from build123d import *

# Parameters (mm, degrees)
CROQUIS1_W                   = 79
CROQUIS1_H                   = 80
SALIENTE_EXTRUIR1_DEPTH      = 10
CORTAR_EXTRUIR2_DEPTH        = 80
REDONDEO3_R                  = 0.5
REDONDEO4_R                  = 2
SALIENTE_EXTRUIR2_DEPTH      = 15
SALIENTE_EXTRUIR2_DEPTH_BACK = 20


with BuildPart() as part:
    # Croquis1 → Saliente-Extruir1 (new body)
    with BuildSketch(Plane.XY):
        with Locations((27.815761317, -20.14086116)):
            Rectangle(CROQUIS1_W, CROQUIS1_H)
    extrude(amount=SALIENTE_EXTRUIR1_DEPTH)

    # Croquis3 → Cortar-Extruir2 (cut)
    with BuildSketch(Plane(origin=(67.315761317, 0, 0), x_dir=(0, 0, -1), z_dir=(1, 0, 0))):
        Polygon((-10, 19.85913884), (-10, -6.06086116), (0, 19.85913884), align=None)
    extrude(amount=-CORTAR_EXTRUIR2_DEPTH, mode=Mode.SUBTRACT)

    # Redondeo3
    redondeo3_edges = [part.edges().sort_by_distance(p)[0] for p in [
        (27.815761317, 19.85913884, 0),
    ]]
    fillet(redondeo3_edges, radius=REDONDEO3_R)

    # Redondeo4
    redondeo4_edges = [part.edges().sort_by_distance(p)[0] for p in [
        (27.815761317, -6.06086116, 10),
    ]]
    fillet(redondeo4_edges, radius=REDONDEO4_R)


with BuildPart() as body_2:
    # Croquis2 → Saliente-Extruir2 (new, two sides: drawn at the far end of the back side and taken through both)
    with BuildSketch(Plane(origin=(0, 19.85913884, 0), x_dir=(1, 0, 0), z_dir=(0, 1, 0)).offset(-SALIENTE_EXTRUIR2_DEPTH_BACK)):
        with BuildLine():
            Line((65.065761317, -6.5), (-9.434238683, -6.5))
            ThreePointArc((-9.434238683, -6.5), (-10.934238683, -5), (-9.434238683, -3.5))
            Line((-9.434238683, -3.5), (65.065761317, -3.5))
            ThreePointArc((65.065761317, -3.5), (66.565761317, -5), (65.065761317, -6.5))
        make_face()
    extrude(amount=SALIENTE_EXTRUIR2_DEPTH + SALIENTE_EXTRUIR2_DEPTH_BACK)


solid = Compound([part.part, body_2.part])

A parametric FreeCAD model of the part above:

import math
import FreeCAD as App
import Part
import Sketcher
from FreeCAD import Vector


def edges_at(feature, points):
    """Names of the edges that pass closest to the given points."""
    edges = feature.Shape.Edges
    near = lambda p: min(range(len(edges)), key=lambda i: edges[i].distToShape(Part.Vertex(*p))[0])
    return sorted({f"Edge{near(p) + 1}" for p in points})

doc = App.newDocument("Part")
params = doc.addObject("Spreadsheet::Sheet", "Params")
for row, (alias, value) in enumerate([
    ("sketch1_width", "79 mm"),
    ("sketch1_height", "80 mm"),
    ("pad1_length", "10 mm"),
    ("sketch2_height", "10 mm"),
    ("sketch2_width", "25.92 mm"),
    ("pocket1_length", "80 mm"),
    ("fillet_radius", "0.5 mm"),
    ("fillet2_radius", "2 mm"),
    ("sketch3_radius", "1.5 mm"),
    ("sketch3_width", "74.5 mm"),
    ("pad2_length", "15 mm"),
    ("pad2_length2", "20 mm"),
], start=1):
    params.set(f"A{row}", alias)
    params.set(f"B{row}", "=" + value)
    params.setAlias(f"B{row}", alias)

body = doc.addObject("PartDesign::Body", "Body")

# Sketch on XY plane
sketch1 = body.newObject("Sketcher::SketchObject", "Sketch")
sketch1.AttachmentSupport = (doc.getObject("XY_Plane"), [""])
sketch1.MapMode = "FlatFace"
sketch1.addGeometry([
    Part.LineSegment(Vector(-12, 20, 0), Vector(-12, -60, 0)),
    Part.LineSegment(Vector(-12, -60, 0), Vector(67, -60, 0)),
    Part.LineSegment(Vector(67, -60, 0), Vector(67, 20, 0)),
    Part.LineSegment(Vector(67, 20, 0), Vector(-12, 20, 0)),
], False)
sketch1.addConstraint([
    Sketcher.Constraint("Coincident", 0, 2, 1, 1),
    Sketcher.Constraint("Coincident", 1, 2, 2, 1),
    Sketcher.Constraint("Coincident", 2, 2, 3, 1),
    Sketcher.Constraint("Coincident", 3, 2, 0, 1),
    Sketcher.Constraint("Vertical", 0),
    Sketcher.Constraint("Horizontal", 1),
    Sketcher.Constraint("Vertical", 2),
    Sketcher.Constraint("Horizontal", 3),
    Sketcher.Constraint("DistanceX", 1, 1, 1, 2, 79.0),
    Sketcher.Constraint("DistanceY", 0, 2, 0, 1, 80.0),
    Sketcher.Constraint("DistanceX", 0, 2, -1, 1, 11.684239),
    Sketcher.Constraint("DistanceY", 0, 2, -1, 1, 60.140861),
])
sketch1.setExpression("Constraints[8]", "Params.sketch1_width")
sketch1.setExpression("Constraints[9]", "Params.sketch1_height")
pad1 = body.newObject("PartDesign::Pad", "Pad")
pad1.Profile = sketch1
pad1.setExpression("Length", "Params.pad1_length")

# Sketch on YZ plane
sketch2 = body.newObject("Sketcher::SketchObject", "Sketch001")
sketch2.AttachmentSupport = (doc.getObject("YZ_Plane"), [""])
sketch2.MapMode = "FlatFace"
sketch2.AttachmentOffset = App.Placement(Vector(0, 0, 67.315761), App.Rotation())
sketch2.addGeometry([
    Part.LineSegment(Vector(20, 10, 0), Vector(-6, 10, 0)),
    Part.LineSegment(Vector(-6, 10, 0), Vector(20, 0, 0)),
    Part.LineSegment(Vector(20, 0, 0), Vector(20, 10, 0)),
], False)
sketch2.addConstraint([
    Sketcher.Constraint("Coincident", 0, 2, 1, 1),
    Sketcher.Constraint("Coincident", 1, 2, 2, 1),
    Sketcher.Constraint("Coincident", 2, 2, 0, 1),
    Sketcher.Constraint("Horizontal", 0),
    Sketcher.Constraint("Vertical", 2),
    Sketcher.Constraint("PointOnObject", 1, 2, -1),
    Sketcher.Constraint("DistanceY", 2, 1, 2, 2, 10.0),
    Sketcher.Constraint("DistanceX", 0, 2, 0, 1, 25.92),
    Sketcher.Constraint("DistanceX", 0, 2, -1, 1, 6.060861),
])
sketch2.setExpression("Constraints[6]", "Params.sketch2_height")
sketch2.setExpression("Constraints[7]", "Params.sketch2_width")
pocket1 = body.newObject("PartDesign::Pocket", "Pocket")
pocket1.Profile = sketch2
pocket1.setExpression("Length", "Params.pocket1_length")
doc.recompute()

fillet = body.newObject("PartDesign::Fillet", "Fillet")
fillet.Base = (pocket1, edges_at(pocket1, [(27.816, 19.859, 0)]))
fillet.setExpression("Radius", "Params.fillet_radius")
doc.recompute()

fillet2 = body.newObject("PartDesign::Fillet", "Fillet001")
fillet2.Base = (fillet, edges_at(fillet, [(27.816, -6.061, 10)]))
fillet2.setExpression("Radius", "Params.fillet2_radius")
body2 = doc.addObject("PartDesign::Body", "Body001")

# Sketch on XZ plane
sketch3 = body2.newObject("Sketcher::SketchObject", "Sketch002")
sketch3.AttachmentSupport = (doc.getObject("XZ_Plane001"), [""])
sketch3.MapMode = "FlatFace"
sketch3.AttachmentOffset = App.Placement(Vector(0, 0, -19.859139), App.Rotation())
sketch3.addGeometry([
    Part.LineSegment(Vector(-9.4, 6.5, 0), Vector(65.1, 6.5, 0)),
    Part.ArcOfCircle(Part.Circle(Vector(65.1, 5, 0), Vector(0, 0, 1), 1.5), math.radians(-90), math.radians(90)),
    Part.LineSegment(Vector(65.1, 3.5, 0), Vector(-9.4, 3.5, 0)),
    Part.ArcOfCircle(Part.Circle(Vector(-9.4, 5, 0), Vector(0, 0, 1), 1.5), math.radians(90), math.radians(270)),
], False)
sketch3.addConstraint([
    Sketcher.Constraint("Tangent", 0, 2, 1, 2),
    Sketcher.Constraint("Tangent", 1, 1, 2, 1),
    Sketcher.Constraint("Tangent", 2, 2, 3, 2),
    Sketcher.Constraint("Tangent", 3, 1, 0, 1),
    Sketcher.Constraint("Horizontal", 0),
    Sketcher.Constraint("Horizontal", 2),
    Sketcher.Constraint("Radius", 1, 1.5),
    Sketcher.Constraint("DistanceX", 0, 1, 0, 2, 74.5),
    Sketcher.Constraint("DistanceY", -1, 1, 1, 3, 5.0),
    Sketcher.Constraint("DistanceX", -1, 1, 1, 3, 65.065761),
])
sketch3.setExpression("Constraints[6]", "Params.sketch3_radius")
sketch3.setExpression("Constraints[7]", "Params.sketch3_width")
pad2 = body2.newObject("PartDesign::Pad", "Pad001")
pad2.Profile = sketch3
pad2.Type = "TwoLengths"
pad2.setExpression("Length", "Params.pad2_length")
pad2.setExpression("Length2", "Params.pad2_length2")
pad2.Reversed = True

doc.recompute()
